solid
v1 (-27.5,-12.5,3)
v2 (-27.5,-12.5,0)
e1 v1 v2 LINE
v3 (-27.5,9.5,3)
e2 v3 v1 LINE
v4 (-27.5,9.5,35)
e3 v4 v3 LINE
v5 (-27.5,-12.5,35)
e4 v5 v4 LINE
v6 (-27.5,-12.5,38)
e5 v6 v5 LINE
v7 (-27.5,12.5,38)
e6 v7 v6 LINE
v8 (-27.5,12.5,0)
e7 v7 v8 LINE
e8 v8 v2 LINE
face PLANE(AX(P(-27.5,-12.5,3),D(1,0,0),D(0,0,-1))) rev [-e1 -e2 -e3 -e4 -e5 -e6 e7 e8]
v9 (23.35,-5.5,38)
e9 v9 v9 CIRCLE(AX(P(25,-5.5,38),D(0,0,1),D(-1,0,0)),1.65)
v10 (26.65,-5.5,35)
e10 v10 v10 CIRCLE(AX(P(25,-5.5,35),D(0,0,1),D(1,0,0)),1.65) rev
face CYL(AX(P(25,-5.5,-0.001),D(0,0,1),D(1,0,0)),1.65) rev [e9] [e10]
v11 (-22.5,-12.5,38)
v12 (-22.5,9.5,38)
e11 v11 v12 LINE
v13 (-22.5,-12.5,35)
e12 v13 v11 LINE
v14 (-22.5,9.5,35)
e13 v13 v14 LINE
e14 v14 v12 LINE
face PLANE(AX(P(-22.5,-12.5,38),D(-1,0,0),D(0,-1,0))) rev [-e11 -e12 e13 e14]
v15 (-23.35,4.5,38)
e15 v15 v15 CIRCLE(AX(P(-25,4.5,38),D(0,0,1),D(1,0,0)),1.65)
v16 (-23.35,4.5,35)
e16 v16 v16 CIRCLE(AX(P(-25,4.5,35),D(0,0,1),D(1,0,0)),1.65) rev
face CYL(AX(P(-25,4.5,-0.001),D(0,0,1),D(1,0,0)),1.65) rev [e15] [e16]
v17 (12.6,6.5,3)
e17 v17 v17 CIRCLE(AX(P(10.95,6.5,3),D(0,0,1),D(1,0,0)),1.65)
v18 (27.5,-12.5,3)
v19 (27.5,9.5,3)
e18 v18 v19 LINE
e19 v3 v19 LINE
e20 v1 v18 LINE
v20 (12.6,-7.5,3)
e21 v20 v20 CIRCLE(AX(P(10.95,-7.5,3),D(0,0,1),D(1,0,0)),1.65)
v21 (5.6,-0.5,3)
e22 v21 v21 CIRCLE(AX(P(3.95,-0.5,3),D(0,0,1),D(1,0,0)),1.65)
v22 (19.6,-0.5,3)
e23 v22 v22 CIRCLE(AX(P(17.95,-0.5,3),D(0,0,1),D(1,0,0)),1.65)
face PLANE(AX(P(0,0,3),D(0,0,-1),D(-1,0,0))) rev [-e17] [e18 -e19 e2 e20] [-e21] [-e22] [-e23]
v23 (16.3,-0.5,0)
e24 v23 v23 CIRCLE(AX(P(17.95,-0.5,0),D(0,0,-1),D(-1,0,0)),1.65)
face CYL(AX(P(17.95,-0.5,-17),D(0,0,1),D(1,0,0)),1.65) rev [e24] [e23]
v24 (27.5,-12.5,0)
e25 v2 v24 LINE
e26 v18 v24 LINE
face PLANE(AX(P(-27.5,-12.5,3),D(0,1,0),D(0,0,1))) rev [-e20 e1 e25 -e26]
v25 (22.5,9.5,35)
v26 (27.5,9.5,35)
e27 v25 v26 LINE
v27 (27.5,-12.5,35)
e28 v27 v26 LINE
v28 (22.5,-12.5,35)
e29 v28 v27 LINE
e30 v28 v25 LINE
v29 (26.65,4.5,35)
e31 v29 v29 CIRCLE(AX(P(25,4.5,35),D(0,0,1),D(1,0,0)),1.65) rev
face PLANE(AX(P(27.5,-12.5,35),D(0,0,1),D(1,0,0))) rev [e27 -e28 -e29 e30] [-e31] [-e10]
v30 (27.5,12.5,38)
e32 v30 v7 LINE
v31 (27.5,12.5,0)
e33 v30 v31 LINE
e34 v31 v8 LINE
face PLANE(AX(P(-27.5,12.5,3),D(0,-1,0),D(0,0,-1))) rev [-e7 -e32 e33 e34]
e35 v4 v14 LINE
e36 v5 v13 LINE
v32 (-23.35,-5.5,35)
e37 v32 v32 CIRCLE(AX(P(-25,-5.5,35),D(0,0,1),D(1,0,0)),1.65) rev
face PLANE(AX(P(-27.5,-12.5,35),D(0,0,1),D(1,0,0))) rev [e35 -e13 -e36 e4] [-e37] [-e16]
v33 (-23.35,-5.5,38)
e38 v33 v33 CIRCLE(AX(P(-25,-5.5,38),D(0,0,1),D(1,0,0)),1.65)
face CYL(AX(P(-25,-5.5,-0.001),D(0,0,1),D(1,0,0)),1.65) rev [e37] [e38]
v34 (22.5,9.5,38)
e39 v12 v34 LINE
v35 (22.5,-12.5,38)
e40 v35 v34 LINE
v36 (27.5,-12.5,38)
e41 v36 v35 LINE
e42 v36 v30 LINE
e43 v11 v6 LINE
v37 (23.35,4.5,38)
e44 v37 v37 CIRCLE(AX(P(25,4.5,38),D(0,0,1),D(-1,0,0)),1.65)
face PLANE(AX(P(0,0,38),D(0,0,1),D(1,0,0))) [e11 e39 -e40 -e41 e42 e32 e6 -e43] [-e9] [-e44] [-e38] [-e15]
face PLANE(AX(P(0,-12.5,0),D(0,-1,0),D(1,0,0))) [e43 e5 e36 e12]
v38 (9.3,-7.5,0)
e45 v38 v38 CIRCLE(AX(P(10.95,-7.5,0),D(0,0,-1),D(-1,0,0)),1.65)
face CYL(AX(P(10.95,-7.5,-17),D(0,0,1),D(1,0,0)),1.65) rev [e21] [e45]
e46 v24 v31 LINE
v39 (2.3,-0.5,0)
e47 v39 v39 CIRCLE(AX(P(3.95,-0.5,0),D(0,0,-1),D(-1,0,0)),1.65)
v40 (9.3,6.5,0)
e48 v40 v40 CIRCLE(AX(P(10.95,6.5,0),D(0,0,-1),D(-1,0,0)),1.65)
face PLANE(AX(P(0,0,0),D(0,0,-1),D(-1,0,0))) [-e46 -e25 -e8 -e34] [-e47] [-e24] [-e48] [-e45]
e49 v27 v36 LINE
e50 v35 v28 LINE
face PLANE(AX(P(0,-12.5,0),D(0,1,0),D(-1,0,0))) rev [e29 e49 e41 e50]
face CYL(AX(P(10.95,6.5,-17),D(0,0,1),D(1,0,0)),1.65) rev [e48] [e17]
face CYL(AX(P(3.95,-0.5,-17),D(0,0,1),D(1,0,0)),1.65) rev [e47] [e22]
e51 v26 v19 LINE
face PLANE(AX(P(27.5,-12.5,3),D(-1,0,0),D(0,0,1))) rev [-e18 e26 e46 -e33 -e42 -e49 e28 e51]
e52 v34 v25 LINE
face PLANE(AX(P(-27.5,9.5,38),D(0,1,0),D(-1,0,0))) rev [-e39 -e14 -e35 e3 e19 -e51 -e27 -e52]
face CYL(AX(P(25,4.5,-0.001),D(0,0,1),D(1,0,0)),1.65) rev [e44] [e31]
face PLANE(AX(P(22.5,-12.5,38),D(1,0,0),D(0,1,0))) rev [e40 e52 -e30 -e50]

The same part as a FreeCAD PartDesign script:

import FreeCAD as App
import Part
import Sketcher
from FreeCAD import Vector
Q = App.Units.Quantity


def add_polygon(sketch, points):
    """Adds a closed chain of lines whose ends are joined by coincident constraints."""
    first, n = sketch.GeometryCount, len(points)
    for a, b in zip(points, points[1:] + points[:1]):
        sketch.addGeometry(Part.LineSegment(App.Vector(*a, 0), App.Vector(*b, 0)), False)
    for i in range(n):
        sketch.addConstraint(Sketcher.Constraint("Coincident", first + i, 2, first + (i + 1) % n, 1))

doc = App.newDocument("Part")
body = doc.addObject("PartDesign::Body", "Body")

# Sketch on XY plane
sketch1 = body.newObject("Sketcher::SketchObject", "Sketch")
sketch1.AttachmentSupport = (doc.getObject("XY_Plane"), [""])
sketch1.MapMode = "FlatFace"
add_polygon(sketch1, [(-28, 12), (-28, -12), (28, -12), (28, 12)])  # lines 0-3
sketch1.addConstraint(Sketcher.Constraint("Vertical", 0))
sketch1.addConstraint(Sketcher.Constraint("Horizontal", 1))
sketch1.addConstraint(Sketcher.Constraint("Vertical", 2))
sketch1.addConstraint(Sketcher.Constraint("Horizontal", 3))
sketch1.addConstraint(Sketcher.Constraint("Symmetric", 0, 2, 2, 2, -1, 1))
sketch1.addConstraint(Sketcher.Constraint("DistanceX", 1, 1, 1, 2, Q("55 mm")))
sketch1.addConstraint(Sketcher.Constraint("DistanceY", 0, 2, 0, 1, Q("25 mm")))
pad1 = body.newObject("PartDesign::Pad", "Pad")
pad1.Profile = sketch1
pad1.Length = 3

# Sketch on XY plane
sketch2 = body.newObject("Sketcher::SketchObject", "Sketch001")
sketch2.AttachmentSupport = (doc.getObject("XY_Plane"), [""])
sketch2.MapMode = "FlatFace"
sketch2.AttachmentOffset = App.Placement(Vector(0, 0, 3), App.Rotation())
add_polygon(sketch2, [(-27.5, 12.5), (-27.5, 9.5), (27.5, 9.5), (27.5, 12.5)])  # lines 0-3
sketch2.addConstraint(Sketcher.Constraint("Vertical", 0))
sketch2.addConstraint(Sketcher.Constraint("Horizontal", 1))
sketch2.addConstraint(Sketcher.Constraint("Vertical", 2))
sketch2.addConstraint(Sketcher.Constraint("Horizontal", 3))
sketch2.addConstraint(Sketcher.Constraint("DistanceX", 1, 1, 1, 2, Q("55 mm")))
sketch2.addConstraint(Sketcher.Constraint("DistanceY", 0, 2, 0, 1, Q("3 mm")))
sketch2.addConstraint(Sketcher.Constraint("DistanceX", 0, 2, -1, 1, Q("27.5 mm")))
sketch2.addConstraint(Sketcher.Constraint("DistanceY", -1, 1, 0, 2, Q("9.5 mm")))
pad2 = body.newObject("PartDesign::Pad", "Pad001")
pad2.Profile = sketch2
pad2.Length = 35

# Sketch on XZ plane
sketch3 = body.newObject("Sketcher::SketchObject", "Sketch002")
sketch3.AttachmentSupport = (doc.getObject("XZ_Plane"), [""])
sketch3.MapMode = "FlatFace"
sketch3.AttachmentOffset = App.Placement(Vector(0, 0, -9.5), App.Rotation())
add_polygon(sketch3, [(-27.5, 38), (-27.5, 35), (-22.5, 35), (-22.5, 38)])  # lines 0-3
add_polygon(sketch3, [(22.5, 38), (22.5, 35), (27.5, 35), (27.5, 38)])  # lines 4-7
sketch3.addConstraint(Sketcher.Constraint("Vertical", 0))
sketch3.addConstraint(Sketcher.Constraint("Horizontal", 1))
sketch3.addConstraint(Sketcher.Constraint("Vertical", 2))
sketch3.addConstraint(Sketcher.Constraint("Horizontal", 3))
sketch3.addConstraint(Sketcher.Constraint("Vertical", 4))
sketch3.addConstraint(Sketcher.Constraint("Horizontal", 5))
sketch3.addConstraint(Sketcher.Constraint("Vertical", 6))
sketch3.addConstraint(Sketcher.Constraint("Horizontal", 7))
sketch3.addConstraint(Sketcher.Constraint("Symmetric", 1, 2, 4, 2, -2))
sketch3.addConstraint(Sketcher.Constraint("Symmetric", 3, 2, 6, 2, -2))
sketch3.addConstraint(Sketcher.Constraint("DistanceX", 1, 1, 1, 2, Q("5 mm")))
sketch3.addConstraint(Sketcher.Constraint("DistanceY", 0, 2, 0, 1, Q("3 mm")))
sketch3.addConstraint(Sketcher.Constraint("DistanceY", -1, 1, 0, 2, Q("35 mm")))
sketch3.addConstraint(Sketcher.Constraint("DistanceX", 1, 2, 4, 2, Q("45 mm")))
pad3 = body.newObject("PartDesign::Pad", "Pad002")
pad3.Profile = sketch3
pad3.Length = 22

# Sketch on XY plane
sketch4 = body.newObject("Sketcher::SketchObject", "Sketch003")
sketch4.AttachmentSupport = (doc.getObject("XY_Plane"), [""])
sketch4.MapMode = "FlatFace"
sketch4.AttachmentOffset = App.Placement(Vector(0, 0, 38), App.Rotation())
sketch4.addGeometry(Part.Circle(Vector(-25, -5.5, 0), Vector(0, 0, 1), 1.6), False)
sketch4.addConstraint(Sketcher.Constraint("Diameter", 0, Q("3.3 mm")))
sketch4.addConstraint(Sketcher.Constraint("DistanceX", 0, 3, -1, 1, Q("25 mm")))
sketch4.addConstraint(Sketcher.Constraint("DistanceY", 0, 3, -1, 1, Q("5.5 mm")))
pocket1 = body.newObject("PartDesign::Pocket", "Pocket")
pocket1.Profile = sketch4
pocket1.Type = "UpToFirst"

# Sketch on XY plane
sketch5 = body.newObject("Sketcher::SketchObject", "Sketch004")
sketch5.AttachmentSupport = (doc.getObject("XY_Plane"), [""])
sketch5.MapMode = "FlatFace"
sketch5.AttachmentOffset = App.Placement(Vector(0, 0, 38), App.Rotation())
sketch5.addGeometry(Part.Circle(Vector(-25, 4.5, 0), Vector(0, 0, 1), 1.6), False)
sketch5.addConstraint(Sketcher.Constraint("Diameter", 0, Q("3.3 mm")))
sketch5.addConstraint(Sketcher.Constraint("DistanceX", 0, 3, -1, 1, Q("25 mm")))
sketch5.addConstraint(Sketcher.Constraint("DistanceY", -1, 1, 0, 3, Q("4.5 mm")))
pocket2 = body.newObject("PartDesign::Pocket", "Pocket001")
pocket2.Profile = sketch5
pocket2.Type = "UpToFirst"

# Sketch on XY plane
sketch6 = body.newObject("Sketcher::SketchObject", "Sketch005")
sketch6.AttachmentSupport = (doc.getObject("XY_Plane"), [""])
sketch6.MapMode = "FlatFace"
sketch6.AttachmentOffset = App.Placement(Vector(0, 0, 38), App.Rotation())
sketch6.addGeometry(Part.Circle(Vector(25, 4.5, 0), Vector(0, 0, 1), 1.6), False)
sketch6.addConstraint(Sketcher.Constraint("Diameter", 0, Q("3.3 mm")))
sketch6.addConstraint(Sketcher.Constraint("DistanceX", -1, 1, 0, 3, Q("25 mm")))
sketch6.addConstraint(Sketcher.Constraint("DistanceY", -1, 1, 0, 3, Q("4.5 mm")))
pocket3 = body.newObject("PartDesign::Pocket", "Pocket002")
pocket3.Profile = sketch6
pocket3.Type = "UpToFirst"

# Sketch on XY plane
sketch7 = body.newObject("Sketcher::SketchObject", "Sketch006")
sketch7.AttachmentSupport = (doc.getObject("XY_Plane"), [""])
sketch7.MapMode = "FlatFace"
sketch7.AttachmentOffset = App.Placement(Vector(0, 0, 38), App.Rotation())
sketch7.addGeometry(Part.Circle(Vector(25, -5.5, 0), Vector(0, 0, 1), 1.6), False)
sketch7.addConstraint(Sketcher.Constraint("Diameter", 0, Q("3.3 mm")))
sketch7.addConstraint(Sketcher.Constraint("DistanceX", -1, 1, 0, 3, Q("25 mm")))
sketch7.addConstraint(Sketcher.Constraint("DistanceY", 0, 3, -1, 1, Q("5.5 mm")))
pocket4 = body.newObject("PartDesign::Pocket", "Pocket003")
pocket4.Profile = sketch7
pocket4.Type = "UpToFirst"

# Sketch on XY plane
sketch8 = body.newObject("Sketcher::SketchObject", "Sketch007")
sketch8.AttachmentSupport = (doc.getObject("XY_Plane"), [""])
sketch8.MapMode = "FlatFace"
sketch8.AttachmentOffset = App.Placement(Vector(0, 0, 3), App.Rotation())
sketch8.addGeometry(Part.Circle(Vector(17.9, -0.5, 0), Vector(0, 0, 1), 1.6), False)
sketch8.addGeometry(Part.Circle(Vector(10.9, 6.5, 0), Vector(0, 0, 1), 1.6), False)
sketch8.addGeometry(Part.Circle(Vector(4, -0.5, 0), Vector(0, 0, 1), 1.6), False)
sketch8.addGeometry(Part.Circle(Vector(10.9, -7.5, 0), Vector(0, 0, 1), 1.6), False)
sketch8.addConstraint(Sketcher.Constraint("Equal", 0, 1))
sketch8.addConstraint(Sketcher.Constraint("Equal", 1, 2))
sketch8.addConstraint(Sketcher.Constraint("Equal", 2, 3))
sketch8.addConstraint(Sketcher.Constraint("Horizontal", 0, 3, 2, 3))
sketch8.addConstraint(Sketcher.Constraint("Vertical", 1, 3, 3, 3))
sketch8.addConstraint(Sketcher.Constraint("Diameter", 0, Q("3.3 mm")))
sketch8.addConstraint(Sketcher.Constraint("DistanceX", 1, 3, 0, 3, Q("7 mm")))
sketch8.addConstraint(Sketcher.Constraint("DistanceY", 0, 3, 1, 3, Q("7 mm")))
sketch8.addConstraint(Sketcher.Constraint("DistanceX", 2, 3, 1, 3, Q("7 mm")))
sketch8.addConstraint(Sketcher.Constraint("DistanceY", 3, 3, 0, 3, Q("7 mm")))
sketch8.addConstraint(Sketcher.Constraint("DistanceY", 0, 3, -1, 1, Q("0.5 mm")))
sketch8.addConstraint(Sketcher.Constraint("DistanceX", -1, 1, 0, 3, Q("17.95 mm")))
pocket5 = body.newObject("PartDesign::Pocket", "Pocket004")
pocket5.Profile = sketch8
pocket5.Length = 20

doc.recompute()
